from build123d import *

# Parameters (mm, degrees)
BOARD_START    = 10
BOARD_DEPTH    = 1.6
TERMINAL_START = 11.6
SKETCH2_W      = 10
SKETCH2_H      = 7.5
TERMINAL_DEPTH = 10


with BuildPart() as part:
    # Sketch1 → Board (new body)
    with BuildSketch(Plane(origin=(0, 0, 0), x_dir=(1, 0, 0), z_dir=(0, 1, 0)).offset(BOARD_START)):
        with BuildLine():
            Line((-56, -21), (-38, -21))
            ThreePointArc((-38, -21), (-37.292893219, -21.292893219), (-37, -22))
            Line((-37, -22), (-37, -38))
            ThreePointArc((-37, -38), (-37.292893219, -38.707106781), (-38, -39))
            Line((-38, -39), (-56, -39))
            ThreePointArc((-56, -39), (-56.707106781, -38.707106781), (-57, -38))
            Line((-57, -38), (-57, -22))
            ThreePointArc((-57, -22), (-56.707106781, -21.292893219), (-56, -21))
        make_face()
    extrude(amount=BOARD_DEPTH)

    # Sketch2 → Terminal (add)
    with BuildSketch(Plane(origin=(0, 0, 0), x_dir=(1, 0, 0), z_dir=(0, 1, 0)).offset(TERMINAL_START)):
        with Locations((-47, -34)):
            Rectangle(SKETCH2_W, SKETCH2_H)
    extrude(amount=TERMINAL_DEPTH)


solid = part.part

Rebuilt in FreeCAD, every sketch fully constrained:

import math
import FreeCAD as App
import Part
import Sketcher
from FreeCAD import Vector

doc = App.newDocument("Part")
body = doc.addObject("PartDesign::Body", "Body")

sketch1 = body.newObject("Sketcher::SketchObject", "Sketch")
sketch1.AttachmentSupport = (doc.getObject("XZ_Plane"), [""])
sketch1.MapMode = "FlatFace"
sketch1.AttachmentOffset = App.Placement(Vector(0, 0, -10), App.Rotation())
sketch1.addGeometry([
    Part.LineSegment(Vector(-38, 21, 0), Vector(-56, 21, 0)),
    Part.ArcOfCircle(Part.Circle(Vector(-56, 22, 0), Vector(0, 0, 1), 1), math.radians(-180), math.radians(-90)),
    Part.LineSegment(Vector(-57, 22, 0), Vector(-57, 38, 0)),
    Part.ArcOfCircle(Part.Circle(Vector(-56, 38, 0), Vector(0, 0, 1), 1), math.radians(90), math.radians(180)),
    Part.LineSegment(Vector(-56, 39, 0), Vector(-38, 39, 0)),
    Part.ArcOfCircle(Part.Circle(Vector(-38, 38, 0), Vector(0, 0, 1), 1), math.radians(0), math.radians(90)),
    Part.LineSegment(Vector(-37, 38, 0), Vector(-37, 22, 0)),
    Part.ArcOfCircle(Part.Circle(Vector(-38, 22, 0), Vector(0, 0, 1), 1), math.radians(-90), math.radians(0)),
], False)
sketch1.addConstraint([
    Sketcher.Constraint("Tangent", 0, 2, 1, 2),
    Sketcher.Constraint("Tangent", 1, 1, 2, 1),
    Sketcher.Constraint("Tangent", 2, 2, 3, 2),
    Sketcher.Constraint("Tangent", 3, 1, 4, 1),
    Sketcher.Constraint("Tangent", 4, 2, 5, 2),
    Sketcher.Constraint("Tangent", 5, 1, 6, 1),
    Sketcher.Constraint("Tangent", 6, 2, 7, 2),
    Sketcher.Constraint("Tangent", 7, 1, 0, 1),
    Sketcher.Constraint("Horizontal", 0),
    Sketcher.Constraint("Vertical", 2),
    Sketcher.Constraint("Horizontal", 4),
    Sketcher.Constraint("Vertical", 6),
    Sketcher.Constraint("Equal", 1, 3),
    Sketcher.Constraint("Equal", 3, 5),
    Sketcher.Constraint("Equal", 5, 7),
    Sketcher.Constraint("Radius", 1, 1.0),
    Sketcher.Constraint("DistanceX", 0, 2, 0, 1, 18.0),
    Sketcher.Constraint("DistanceY", 2, 1, 2, 2, 16.0),
    Sketcher.Constraint("DistanceX", 1, 3, -1, 1, 56.0),
    Sketcher.Constraint("DistanceY", -1, 1, 1, 3, 22.0),
])
pad1 = body.newObject("PartDesign::Pad", "Pad")
pad1.Profile = sketch1
pad1.Length = 1.6
pad1.Reversed = True

sketch2 = body.newObject("Sketcher::SketchObject", "Sketch001")
sketch2.AttachmentSupport = (doc.getObject("XZ_Plane"), [""])
sketch2.MapMode = "FlatFace"
sketch2.AttachmentOffset = App.Placement(Vector(0, 0, -11.6), App.Rotation())
sketch2.addGeometry([
    Part.LineSegment(Vector(-52, 30, 0), Vector(-52, 38, 0)),
    Part.LineSegment(Vector(-52, 38, 0), Vector(-42, 38, 0)),
    Part.LineSegment(Vector(-42, 38, 0), Vector(-42, 30, 0)),
    Part.LineSegment(Vector(-42, 30, 0), Vector(-52, 30, 0)),
], False)
sketch2.addConstraint([
    Sketcher.Constraint("Coincident", 0, 2, 1, 1),
    Sketcher.Constraint("Coincident", 1, 2, 2, 1),
    Sketcher.Constraint("Coincident", 2, 2, 3, 1),
    Sketcher.Constraint("Coincident", 3, 2, 0, 1),
    Sketcher.Constraint("Vertical", 0),
    Sketcher.Constraint("Horizontal", 1),
    Sketcher.Constraint("Vertical", 2),
    Sketcher.Constraint("Horizontal", 3),
    Sketcher.Constraint("DistanceX", 1, 1, 1, 2, 10.0),
    Sketcher.Constraint("DistanceY", 0, 1, 0, 2, 7.5),
    Sketcher.Constraint("DistanceX", 0, 2, -1, 1, 52.0),
    Sketcher.Constraint("DistanceY", -1, 1, 0, 2, 37.75),
])
pad2 = body.newObject("PartDesign::Pad", "Pad001")
pad2.Profile = sketch2
pad2.Length = 10
pad2.Reversed = True

doc.recompute()
